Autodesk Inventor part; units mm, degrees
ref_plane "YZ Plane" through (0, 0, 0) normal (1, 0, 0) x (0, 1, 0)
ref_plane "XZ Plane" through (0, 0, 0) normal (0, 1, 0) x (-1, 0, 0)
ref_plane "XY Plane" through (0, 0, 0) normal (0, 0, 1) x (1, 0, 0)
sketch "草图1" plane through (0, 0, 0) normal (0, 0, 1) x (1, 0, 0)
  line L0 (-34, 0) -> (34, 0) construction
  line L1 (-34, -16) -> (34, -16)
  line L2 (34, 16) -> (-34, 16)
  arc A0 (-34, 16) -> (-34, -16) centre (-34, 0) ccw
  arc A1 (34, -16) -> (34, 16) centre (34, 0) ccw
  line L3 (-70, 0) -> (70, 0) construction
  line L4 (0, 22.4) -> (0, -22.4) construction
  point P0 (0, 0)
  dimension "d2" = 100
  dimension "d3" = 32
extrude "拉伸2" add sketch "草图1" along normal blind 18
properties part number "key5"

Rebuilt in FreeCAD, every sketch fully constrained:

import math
import FreeCAD as App
import Part
import Sketcher

V = App.Vector
Q = App.Units.Quantity

doc = App.newDocument("Part")
params = doc.addObject("Spreadsheet::Sheet", "Params")
for row, (alias, value) in enumerate([
    ("sketch1_radius", "16 mm"),
    ("sketch1_width", "68 mm"),
    ("pad1_length", "18 mm"),
], start=1):
    params.set(f"A{row}", alias)
    params.set(f"B{row}", "=" + value)
    params.setAlias(f"B{row}", alias)

body = doc.addObject("PartDesign::Body", "Body")

sketch1 = doc.addObject("Sketcher::SketchObject", "Sketch")
body.addObject(sketch1)
sketch1.AttachmentSupport = (doc.XY_Plane, [""])
sketch1.MapMode = "FlatFace"
sketch1.addGeometry([
    Part.ArcOfCircle(Part.Circle(V(-34, 0, 0), V(0, 0, 1), 16), math.radians(90), math.radians(270)),
    Part.LineSegment(V(-34, -16, 0), V(34, -16, 0)),
    Part.ArcOfCircle(Part.Circle(V(34, 0, 0), V(0, 0, 1), 16), math.radians(-90), math.radians(90)),
    Part.LineSegment(V(34, 16, 0), V(-34, 16, 0)),
], False)
sketch1.addConstraint([
    Sketcher.Constraint("Tangent", 0, 2, 1, 1),
    Sketcher.Constraint("Tangent", 1, 2, 2, 1),
    Sketcher.Constraint("Tangent", 2, 2, 3, 1),
    Sketcher.Constraint("Tangent", 3, 2, 0, 1),
    Sketcher.Constraint("Horizontal", 1),
    Sketcher.Constraint("Horizontal", 3),
    Sketcher.Constraint("Symmetric", 0, 3, 2, 3, -1, 1),
    Sketcher.Constraint("Radius", 0, Q("16 mm")),
    Sketcher.Constraint("DistanceX", 1, 1, 1, 2, Q("68 mm")),
])
sketch1.setExpression("Constraints[7]", "Params.sketch1_radius")
sketch1.setExpression("Constraints[8]", "Params.sketch1_width")
pad1 = doc.addObject("PartDesign::Pad", "Pad")
body.addObject(pad1)
pad1.Profile = sketch1
pad1.setExpression("Length", "Params.pad1_length")

doc.recompute()
